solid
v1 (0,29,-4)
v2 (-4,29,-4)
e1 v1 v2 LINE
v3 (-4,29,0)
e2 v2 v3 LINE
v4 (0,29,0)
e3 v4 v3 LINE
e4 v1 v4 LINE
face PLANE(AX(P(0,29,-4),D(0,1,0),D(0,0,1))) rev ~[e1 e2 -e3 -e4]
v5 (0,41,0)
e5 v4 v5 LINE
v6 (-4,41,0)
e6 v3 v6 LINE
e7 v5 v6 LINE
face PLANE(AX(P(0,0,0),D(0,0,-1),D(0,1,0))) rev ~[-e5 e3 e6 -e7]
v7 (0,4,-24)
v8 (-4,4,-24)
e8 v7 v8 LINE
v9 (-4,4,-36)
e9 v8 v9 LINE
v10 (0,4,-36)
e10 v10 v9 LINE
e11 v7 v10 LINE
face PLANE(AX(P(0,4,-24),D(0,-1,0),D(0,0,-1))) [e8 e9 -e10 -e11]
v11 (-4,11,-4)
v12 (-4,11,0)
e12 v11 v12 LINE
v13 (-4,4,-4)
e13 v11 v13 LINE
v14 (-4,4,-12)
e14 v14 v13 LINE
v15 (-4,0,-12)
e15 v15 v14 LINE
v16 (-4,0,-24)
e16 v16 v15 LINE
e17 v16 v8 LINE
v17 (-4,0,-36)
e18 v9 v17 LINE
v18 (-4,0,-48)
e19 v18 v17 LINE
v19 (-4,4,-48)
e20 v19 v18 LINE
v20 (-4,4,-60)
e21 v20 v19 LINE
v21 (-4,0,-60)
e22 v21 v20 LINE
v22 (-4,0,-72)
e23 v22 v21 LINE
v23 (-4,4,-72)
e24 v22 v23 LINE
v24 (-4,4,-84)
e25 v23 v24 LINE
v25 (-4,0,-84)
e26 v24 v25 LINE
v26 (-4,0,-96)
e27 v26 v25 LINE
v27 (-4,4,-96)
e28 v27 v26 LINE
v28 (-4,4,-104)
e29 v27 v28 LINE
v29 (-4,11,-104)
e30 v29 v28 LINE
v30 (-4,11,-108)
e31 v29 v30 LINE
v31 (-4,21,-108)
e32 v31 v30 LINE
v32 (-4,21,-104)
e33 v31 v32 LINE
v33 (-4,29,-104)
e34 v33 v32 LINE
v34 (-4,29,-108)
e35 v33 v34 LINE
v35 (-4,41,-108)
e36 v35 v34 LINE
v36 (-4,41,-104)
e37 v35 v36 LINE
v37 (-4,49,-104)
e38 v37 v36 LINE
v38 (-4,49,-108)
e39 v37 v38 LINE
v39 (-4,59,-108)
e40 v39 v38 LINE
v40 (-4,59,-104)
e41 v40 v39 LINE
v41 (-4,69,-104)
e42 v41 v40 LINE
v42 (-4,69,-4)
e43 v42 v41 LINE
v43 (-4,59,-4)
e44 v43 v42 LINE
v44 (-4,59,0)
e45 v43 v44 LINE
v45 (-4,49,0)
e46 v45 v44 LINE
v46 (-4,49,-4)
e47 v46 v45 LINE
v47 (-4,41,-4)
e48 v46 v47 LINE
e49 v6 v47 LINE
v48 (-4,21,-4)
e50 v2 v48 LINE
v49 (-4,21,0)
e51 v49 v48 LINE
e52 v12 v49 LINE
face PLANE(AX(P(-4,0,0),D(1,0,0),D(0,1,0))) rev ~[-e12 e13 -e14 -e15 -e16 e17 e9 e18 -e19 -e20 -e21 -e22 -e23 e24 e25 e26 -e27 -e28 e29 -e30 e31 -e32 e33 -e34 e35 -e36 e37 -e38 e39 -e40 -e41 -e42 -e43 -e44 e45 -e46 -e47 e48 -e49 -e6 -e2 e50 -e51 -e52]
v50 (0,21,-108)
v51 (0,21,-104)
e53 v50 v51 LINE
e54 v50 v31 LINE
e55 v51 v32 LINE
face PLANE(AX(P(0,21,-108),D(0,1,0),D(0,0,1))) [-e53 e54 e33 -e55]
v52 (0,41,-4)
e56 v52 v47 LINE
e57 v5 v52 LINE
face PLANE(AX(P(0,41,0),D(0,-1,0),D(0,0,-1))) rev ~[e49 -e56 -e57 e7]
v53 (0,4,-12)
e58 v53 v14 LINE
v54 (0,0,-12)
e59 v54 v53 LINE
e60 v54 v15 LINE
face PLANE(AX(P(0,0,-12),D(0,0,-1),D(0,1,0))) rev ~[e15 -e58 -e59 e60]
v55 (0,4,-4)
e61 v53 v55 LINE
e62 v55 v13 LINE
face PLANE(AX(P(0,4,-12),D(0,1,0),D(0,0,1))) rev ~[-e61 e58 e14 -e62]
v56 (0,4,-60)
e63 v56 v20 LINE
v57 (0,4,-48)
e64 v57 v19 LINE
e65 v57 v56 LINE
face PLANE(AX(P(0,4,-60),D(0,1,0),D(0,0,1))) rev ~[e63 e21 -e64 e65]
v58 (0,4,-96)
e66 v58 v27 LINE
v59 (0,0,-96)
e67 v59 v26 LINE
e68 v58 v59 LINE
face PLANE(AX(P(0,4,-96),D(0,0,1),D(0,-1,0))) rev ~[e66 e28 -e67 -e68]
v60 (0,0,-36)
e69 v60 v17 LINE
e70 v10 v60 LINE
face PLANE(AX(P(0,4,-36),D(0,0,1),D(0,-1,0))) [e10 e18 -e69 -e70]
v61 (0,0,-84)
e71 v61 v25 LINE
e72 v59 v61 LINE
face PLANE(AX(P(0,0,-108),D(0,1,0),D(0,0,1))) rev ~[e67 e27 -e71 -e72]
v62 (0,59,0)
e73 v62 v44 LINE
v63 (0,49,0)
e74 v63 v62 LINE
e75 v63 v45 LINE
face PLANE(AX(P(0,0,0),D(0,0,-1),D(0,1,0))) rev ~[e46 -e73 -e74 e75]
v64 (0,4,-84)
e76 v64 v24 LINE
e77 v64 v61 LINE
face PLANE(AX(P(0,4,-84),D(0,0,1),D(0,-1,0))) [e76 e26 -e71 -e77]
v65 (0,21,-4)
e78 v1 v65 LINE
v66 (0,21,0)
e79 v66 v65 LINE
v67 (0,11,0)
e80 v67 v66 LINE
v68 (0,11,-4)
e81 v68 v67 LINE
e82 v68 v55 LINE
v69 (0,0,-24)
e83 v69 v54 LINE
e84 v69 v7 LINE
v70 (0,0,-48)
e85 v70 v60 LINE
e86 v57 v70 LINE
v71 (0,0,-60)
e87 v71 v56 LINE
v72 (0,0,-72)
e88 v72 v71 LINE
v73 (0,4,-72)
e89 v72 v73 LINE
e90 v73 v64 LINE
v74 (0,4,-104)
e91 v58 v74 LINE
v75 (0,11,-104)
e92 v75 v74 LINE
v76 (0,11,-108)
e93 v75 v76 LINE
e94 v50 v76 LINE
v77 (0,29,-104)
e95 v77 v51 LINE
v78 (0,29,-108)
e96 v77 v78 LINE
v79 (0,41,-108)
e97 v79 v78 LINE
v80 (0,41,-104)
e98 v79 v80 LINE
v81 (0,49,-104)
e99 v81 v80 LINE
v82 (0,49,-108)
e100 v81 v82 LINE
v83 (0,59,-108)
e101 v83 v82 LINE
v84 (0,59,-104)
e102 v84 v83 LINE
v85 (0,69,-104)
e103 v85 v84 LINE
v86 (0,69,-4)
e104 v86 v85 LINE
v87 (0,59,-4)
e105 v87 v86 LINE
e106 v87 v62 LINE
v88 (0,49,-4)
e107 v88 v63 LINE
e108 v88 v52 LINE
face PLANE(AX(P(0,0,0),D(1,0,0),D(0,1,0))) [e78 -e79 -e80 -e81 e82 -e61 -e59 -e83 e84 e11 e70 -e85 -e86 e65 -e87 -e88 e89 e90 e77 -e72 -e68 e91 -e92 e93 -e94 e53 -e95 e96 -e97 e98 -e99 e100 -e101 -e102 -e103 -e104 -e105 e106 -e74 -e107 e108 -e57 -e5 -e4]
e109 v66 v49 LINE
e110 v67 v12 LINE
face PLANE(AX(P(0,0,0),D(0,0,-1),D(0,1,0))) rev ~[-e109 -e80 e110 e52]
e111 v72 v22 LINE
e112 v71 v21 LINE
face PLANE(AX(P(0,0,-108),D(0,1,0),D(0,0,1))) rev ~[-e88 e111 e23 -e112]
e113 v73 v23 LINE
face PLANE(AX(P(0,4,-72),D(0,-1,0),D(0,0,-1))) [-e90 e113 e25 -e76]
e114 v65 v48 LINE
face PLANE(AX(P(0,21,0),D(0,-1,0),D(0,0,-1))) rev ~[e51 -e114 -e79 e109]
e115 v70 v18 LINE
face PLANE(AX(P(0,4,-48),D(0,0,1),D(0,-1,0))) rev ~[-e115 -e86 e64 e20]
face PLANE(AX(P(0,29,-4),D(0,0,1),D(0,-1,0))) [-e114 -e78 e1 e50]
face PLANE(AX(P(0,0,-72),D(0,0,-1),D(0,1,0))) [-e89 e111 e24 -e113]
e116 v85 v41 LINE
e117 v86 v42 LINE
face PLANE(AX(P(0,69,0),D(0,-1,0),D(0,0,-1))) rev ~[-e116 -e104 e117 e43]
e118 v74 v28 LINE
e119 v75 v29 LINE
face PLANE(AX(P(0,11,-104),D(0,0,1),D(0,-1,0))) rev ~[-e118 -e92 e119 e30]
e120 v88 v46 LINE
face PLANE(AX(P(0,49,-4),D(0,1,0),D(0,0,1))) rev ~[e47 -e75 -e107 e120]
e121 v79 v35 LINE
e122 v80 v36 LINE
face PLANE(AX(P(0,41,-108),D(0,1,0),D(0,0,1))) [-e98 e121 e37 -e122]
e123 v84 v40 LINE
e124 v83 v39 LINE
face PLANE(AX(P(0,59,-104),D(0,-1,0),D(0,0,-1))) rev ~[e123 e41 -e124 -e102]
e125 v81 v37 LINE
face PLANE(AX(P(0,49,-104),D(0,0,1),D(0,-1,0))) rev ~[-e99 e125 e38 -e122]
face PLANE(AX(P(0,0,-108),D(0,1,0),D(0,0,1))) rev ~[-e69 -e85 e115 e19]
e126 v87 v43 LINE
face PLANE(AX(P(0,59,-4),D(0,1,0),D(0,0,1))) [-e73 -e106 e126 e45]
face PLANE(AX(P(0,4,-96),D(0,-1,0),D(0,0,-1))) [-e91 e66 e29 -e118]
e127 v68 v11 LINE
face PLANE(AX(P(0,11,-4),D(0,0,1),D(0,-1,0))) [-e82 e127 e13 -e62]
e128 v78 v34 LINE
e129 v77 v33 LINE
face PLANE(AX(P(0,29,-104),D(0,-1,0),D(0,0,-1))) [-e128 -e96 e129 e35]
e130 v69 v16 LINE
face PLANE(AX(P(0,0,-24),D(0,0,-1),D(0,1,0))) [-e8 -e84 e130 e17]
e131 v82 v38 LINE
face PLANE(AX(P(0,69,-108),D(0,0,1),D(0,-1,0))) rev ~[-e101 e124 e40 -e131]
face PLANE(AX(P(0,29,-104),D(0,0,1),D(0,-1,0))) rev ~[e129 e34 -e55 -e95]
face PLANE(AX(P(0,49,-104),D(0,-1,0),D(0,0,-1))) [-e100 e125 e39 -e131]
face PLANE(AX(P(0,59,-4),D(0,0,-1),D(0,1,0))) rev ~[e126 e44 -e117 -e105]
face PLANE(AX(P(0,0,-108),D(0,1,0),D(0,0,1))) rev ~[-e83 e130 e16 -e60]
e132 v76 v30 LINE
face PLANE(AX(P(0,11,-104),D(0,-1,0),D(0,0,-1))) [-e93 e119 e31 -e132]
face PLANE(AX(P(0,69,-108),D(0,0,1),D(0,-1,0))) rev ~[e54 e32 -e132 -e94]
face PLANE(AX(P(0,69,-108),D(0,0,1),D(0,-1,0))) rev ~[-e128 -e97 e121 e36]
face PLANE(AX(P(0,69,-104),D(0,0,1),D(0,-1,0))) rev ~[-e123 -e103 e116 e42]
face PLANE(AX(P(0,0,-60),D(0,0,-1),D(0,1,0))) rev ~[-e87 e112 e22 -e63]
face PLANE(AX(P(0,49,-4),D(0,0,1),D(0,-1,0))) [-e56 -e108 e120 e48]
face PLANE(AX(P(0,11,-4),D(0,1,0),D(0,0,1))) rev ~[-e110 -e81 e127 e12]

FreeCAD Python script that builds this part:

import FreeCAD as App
import Part
import Sketcher
from FreeCAD import Vector
Q = App.Units.Quantity


def add_polygon(sketch, points):
    """Adds a closed chain of lines whose ends are joined by coincident constraints."""
    first, n = sketch.GeometryCount, len(points)
    for a, b in zip(points, points[1:] + points[:1]):
        sketch.addGeometry(Part.LineSegment(App.Vector(*a, 0), App.Vector(*b, 0)), False)
    for i in range(n):
        sketch.addConstraint(Sketcher.Constraint("Coincident", first + i, 2, first + (i + 1) % n, 1))

doc = App.newDocument("Part")
body = doc.addObject("PartDesign::Body", "Body")

sketch1 = doc.addObject("Sketcher::SketchObject", "Sketch")
body.addObject(sketch1)
sketch1.AttachmentSupport = (doc.YZ_Plane, [""])
sketch1.MapMode = "FlatFace"
add_polygon(sketch1, [(69, 0), (0, 0), (0, -108), (69, -108)])
sketch1.addConstraint(Sketcher.Constraint("Horizontal", 0))
sketch1.addConstraint(Sketcher.Constraint("Vertical", 1))
sketch1.addConstraint(Sketcher.Constraint("Horizontal", 2))
sketch1.addConstraint(Sketcher.Constraint("Vertical", 3))
sketch1.addConstraint(Sketcher.Constraint("Coincident", 0, 2, -1, 1))
sketch1.addConstraint(Sketcher.Constraint("DistanceX", 0, 2, 0, 1, Q("69 mm")))
sketch1.addConstraint(Sketcher.Constraint("DistanceY", 1, 2, 1, 1, Q("108 mm")))
pad1 = doc.addObject("PartDesign::Pad", "Pad")
body.addObject(pad1)
pad1.Profile = sketch1
pad1.Length = 4
pad1.Reversed = True

sketch2 = doc.addObject("Sketcher::SketchObject", "Sketch001")
body.addObject(sketch2)
sketch2.AttachmentSupport = (doc.YZ_Plane, [""])
sketch2.MapMode = "FlatFace"
add_polygon(sketch2, [(69, -108), (69, -104), (59, -104), (59, -108)])
add_polygon(sketch2, [(59, -4), (69, -4), (69, 0), (59, 0)])
add_polygon(sketch2, [(4, -60), (4, -48), (0, -48), (0, -60)])
add_polygon(sketch2, [(41, 0), (41, -4), (49, -4), (49, 0)])
add_polygon(sketch2, [(21, -4), (29, -4), (29, 0), (21, 0)])
add_polygon(sketch2, [(49, -104), (41, -104), (41, -108), (49, -108)])
add_polygon(sketch2, [(29, -108), (29, -104), (21, -104), (21, -108)])
add_polygon(sketch2, [(4, -72), (0, -72), (0, -84), (4, -84)])
add_polygon(sketch2, [(0, -24), (0, -36), (4, -36), (4, -24)])
add_polygon(sketch2, [(4, -4), (11, -4), (11, 0), (0, 0), (0, -12), (4, -12)])
add_polygon(sketch2, [(11, -108), (11, -104), (4, -104), (4, -96), (0, -96), (0, -108)])
sketch2.addConstraint(Sketcher.Constraint("Vertical", 0))
sketch2.addConstraint(Sketcher.Constraint("Horizontal", 1))
sketch2.addConstraint(Sketcher.Constraint("Vertical", 2))
sketch2.addConstraint(Sketcher.Constraint("Horizontal", 3))
sketch2.addConstraint(Sketcher.Constraint("Horizontal", 4))
sketch2.addConstraint(Sketcher.Constraint("Vertical", 5))
sketch2.addConstraint(Sketcher.Constraint("Horizontal", 6))
sketch2.addConstraint(Sketcher.Constraint("Vertical", 7))
sketch2.addConstraint(Sketcher.Constraint("Vertical", 8))
sketch2.addConstraint(Sketcher.Constraint("Horizontal", 9))
sketch2.addConstraint(Sketcher.Constraint("Vertical", 10))
sketch2.addConstraint(Sketcher.Constraint("Horizontal", 11))
sketch2.addConstraint(Sketcher.Constraint("Vertical", 12))
sketch2.addConstraint(Sketcher.Constraint("Horizontal", 13))
sketch2.addConstraint(Sketcher.Constraint("Vertical", 14))
sketch2.addConstraint(Sketcher.Constraint("Horizontal", 15))
sketch2.addConstraint(Sketcher.Constraint("Horizontal", 16))
sketch2.addConstraint(Sketcher.Constraint("Vertical", 17))
sketch2.addConstraint(Sketcher.Constraint("Horizontal", 18))
sketch2.addConstraint(Sketcher.Constraint("Vertical", 19))
sketch2.addConstraint(Sketcher.Constraint("Horizontal", 20))
sketch2.addConstraint(Sketcher.Constraint("Vertical", 21))
sketch2.addConstraint(Sketcher.Constraint("Horizontal", 22))
sketch2.addConstraint(Sketcher.Constraint("Vertical", 23))
sketch2.addConstraint(Sketcher.Constraint("Vertical", 24))
sketch2.addConstraint(Sketcher.Constraint("Horizontal", 25))
sketch2.addConstraint(Sketcher.Constraint("Vertical", 26))
sketch2.addConstraint(Sketcher.Constraint("Horizontal", 27))
sketch2.addConstraint(Sketcher.Constraint("Horizontal", 28))
sketch2.addConstraint(Sketcher.Constraint("Vertical", 29))
sketch2.addConstraint(Sketcher.Constraint("Horizontal", 30))
sketch2.addConstraint(Sketcher.Constraint("Vertical", 31))
sketch2.addConstraint(Sketcher.Constraint("Vertical", 32))
sketch2.addConstraint(Sketcher.Constraint("Horizontal", 33))
sketch2.addConstraint(Sketcher.Constraint("Vertical", 34))
sketch2.addConstraint(Sketcher.Constraint("Horizontal", 35))
sketch2.addConstraint(Sketcher.Constraint("Horizontal", 36))
sketch2.addConstraint(Sketcher.Constraint("Vertical", 37))
sketch2.addConstraint(Sketcher.Constraint("Horizontal", 38))
sketch2.addConstraint(Sketcher.Constraint("Vertical", 39))
sketch2.addConstraint(Sketcher.Constraint("Horizontal", 40))
sketch2.addConstraint(Sketcher.Constraint("Vertical", 41))
sketch2.addConstraint(Sketcher.Constraint("Vertical", 42))
sketch2.addConstraint(Sketcher.Constraint("Horizontal", 43))
sketch2.addConstraint(Sketcher.Constraint("Vertical", 44))
sketch2.addConstraint(Sketcher.Constraint("Horizontal", 45))
sketch2.addConstraint(Sketcher.Constraint("Vertical", 46))
sketch2.addConstraint(Sketcher.Constraint("Horizontal", 47))
sketch2.addConstraint(Sketcher.Constraint("Coincident", 38, 2, -1, 1))
sketch2.addConstraint(Sketcher.Constraint("PointOnObject", 5, 2, -1))
sketch2.addConstraint(Sketcher.Constraint("PointOnObject", 9, 2, -2))
sketch2.addConstraint(Sketcher.Constraint("PointOnObject", 14, 2, -1))
sketch2.addConstraint(Sketcher.Constraint("PointOnObject", 17, 2, -1))
sketch2.addConstraint(Sketcher.Constraint("PointOnObject", 28, 2, -2))
sketch2.addConstraint(Sketcher.Constraint("PointOnObject", 32, 2, -2))
sketch2.addConstraint(Sketcher.Constraint("PointOnObject", 45, 2, -2))
sketch2.addConstraint(Sketcher.Constraint("Horizontal", 7, 2, 12, 2))
sketch2.addConstraint(Sketcher.Constraint("Horizontal", 13, 2, 16, 2))
sketch2.addConstraint(Sketcher.Constraint("Horizontal", 1, 2, 20, 2))
sketch2.addConstraint(Sketcher.Constraint("Horizontal", 3, 2, 21, 2))
sketch2.addConstraint(Sketcher.Constraint("Horizontal", 23, 2, 24, 2))
sketch2.addConstraint(Sketcher.Constraint("Horizontal", 22, 2, 26, 2))
sketch2.addConstraint(Sketcher.Constraint("Horizontal", 19, 2, 36, 2))
sketch2.addConstraint(Sketcher.Constraint("Horizontal", 25, 2, 42, 2))
sketch2.addConstraint(Sketcher.Constraint("Horizontal", 27, 2, 46, 2))
sketch2.addConstraint(Sketcher.Constraint("Vertical", 3, 2, 4, 2))
sketch2.addConstraint(Sketcher.Constraint("Vertical", 2, 2, 6, 2))
sketch2.addConstraint(Sketcher.Constraint("Vertical", 15, 2, 20, 2))
sketch2.addConstraint(Sketcher.Constraint("Vertical", 14, 2, 22, 2))
sketch2.addConstraint(Sketcher.Constraint("Vertical", 17, 2, 24, 2))
sketch2.addConstraint(Sketcher.Constraint("Vertical", 19, 2, 25, 2))
sketch2.addConstraint(Sketcher.Constraint("Vertical", 11, 2, 30, 2))
sketch2.addConstraint(Sketcher.Constraint("Vertical", 31, 2, 33, 2))
sketch2.addConstraint(Sketcher.Constraint("Vertical", 34, 2, 40, 2))
sketch2.addConstraint(Sketcher.Constraint("Vertical", 37, 2, 42, 2))
sketch2.addConstraint(Sketcher.Constraint("Vertical", 41, 2, 43, 2))
sketch2.addConstraint(Sketcher.Constraint("Equal", 15, 16))
sketch2.addConstraint(Sketcher.Constraint("Equal", 45, 0))
sketch2.addConstraint(Sketcher.Constraint("Equal", 2, 5))
sketch2.addConstraint(Sketcher.Constraint("Equal", 10, 29))
sketch2.addConstraint(Sketcher.Constraint("Equal", 31, 32))
sketch2.addConstraint(Sketcher.Constraint("Equal", 34, 39))
sketch2.addConstraint(Sketcher.Constraint("Equal", 27, 41))
sketch2.addConstraint(Sketcher.Constraint("Equal", 41, 44))
sketch2.addConstraint(Sketcher.Constraint("DistanceX", 1, 2, 1, 1, Q("10 mm")))
sketch2.addConstraint(Sketcher.Constraint("DistanceX", 9, 2, 9, 1, Q("4 mm")))
sketch2.addConstraint(Sketcher.Constraint("DistanceX", 13, 1, 13, 2, Q("8 mm")))
sketch2.addConstraint(Sketcher.Constraint("DistanceX", 13, 2, 7, 2, Q("10 mm")))
sketch2.addConstraint(Sketcher.Constraint("DistanceX", 16, 2, 12, 2, Q("12 mm")))
sketch2.addConstraint(Sketcher.Constraint("DistanceY", 28, 2, 10, 2, Q("12 mm")))
sketch2.addConstraint(Sketcher.Constraint("DistanceY", 9, 2, 32, 2, Q("12 mm")))
sketch2.addConstraint(Sketcher.Constraint("DistanceX", 36, 2, 19, 2, Q("10 mm")))
sketch2.addConstraint(Sketcher.Constraint("DistanceY", 35, 2, 39, 2, Q("12 mm")))
sketch2.addConstraint(Sketcher.Constraint("DistanceY", 44, 2, 30, 2, Q("12 mm")))
sketch2.addConstraint(Sketcher.Constraint("DistanceX", 36, 1, 36, 2, Q("7 mm")))
pocket1 = doc.addObject("PartDesign::Pocket", "Pocket")
body.addObject(pocket1)
pocket1.Profile = sketch2
pocket1.Length = 4

doc.recompute()
